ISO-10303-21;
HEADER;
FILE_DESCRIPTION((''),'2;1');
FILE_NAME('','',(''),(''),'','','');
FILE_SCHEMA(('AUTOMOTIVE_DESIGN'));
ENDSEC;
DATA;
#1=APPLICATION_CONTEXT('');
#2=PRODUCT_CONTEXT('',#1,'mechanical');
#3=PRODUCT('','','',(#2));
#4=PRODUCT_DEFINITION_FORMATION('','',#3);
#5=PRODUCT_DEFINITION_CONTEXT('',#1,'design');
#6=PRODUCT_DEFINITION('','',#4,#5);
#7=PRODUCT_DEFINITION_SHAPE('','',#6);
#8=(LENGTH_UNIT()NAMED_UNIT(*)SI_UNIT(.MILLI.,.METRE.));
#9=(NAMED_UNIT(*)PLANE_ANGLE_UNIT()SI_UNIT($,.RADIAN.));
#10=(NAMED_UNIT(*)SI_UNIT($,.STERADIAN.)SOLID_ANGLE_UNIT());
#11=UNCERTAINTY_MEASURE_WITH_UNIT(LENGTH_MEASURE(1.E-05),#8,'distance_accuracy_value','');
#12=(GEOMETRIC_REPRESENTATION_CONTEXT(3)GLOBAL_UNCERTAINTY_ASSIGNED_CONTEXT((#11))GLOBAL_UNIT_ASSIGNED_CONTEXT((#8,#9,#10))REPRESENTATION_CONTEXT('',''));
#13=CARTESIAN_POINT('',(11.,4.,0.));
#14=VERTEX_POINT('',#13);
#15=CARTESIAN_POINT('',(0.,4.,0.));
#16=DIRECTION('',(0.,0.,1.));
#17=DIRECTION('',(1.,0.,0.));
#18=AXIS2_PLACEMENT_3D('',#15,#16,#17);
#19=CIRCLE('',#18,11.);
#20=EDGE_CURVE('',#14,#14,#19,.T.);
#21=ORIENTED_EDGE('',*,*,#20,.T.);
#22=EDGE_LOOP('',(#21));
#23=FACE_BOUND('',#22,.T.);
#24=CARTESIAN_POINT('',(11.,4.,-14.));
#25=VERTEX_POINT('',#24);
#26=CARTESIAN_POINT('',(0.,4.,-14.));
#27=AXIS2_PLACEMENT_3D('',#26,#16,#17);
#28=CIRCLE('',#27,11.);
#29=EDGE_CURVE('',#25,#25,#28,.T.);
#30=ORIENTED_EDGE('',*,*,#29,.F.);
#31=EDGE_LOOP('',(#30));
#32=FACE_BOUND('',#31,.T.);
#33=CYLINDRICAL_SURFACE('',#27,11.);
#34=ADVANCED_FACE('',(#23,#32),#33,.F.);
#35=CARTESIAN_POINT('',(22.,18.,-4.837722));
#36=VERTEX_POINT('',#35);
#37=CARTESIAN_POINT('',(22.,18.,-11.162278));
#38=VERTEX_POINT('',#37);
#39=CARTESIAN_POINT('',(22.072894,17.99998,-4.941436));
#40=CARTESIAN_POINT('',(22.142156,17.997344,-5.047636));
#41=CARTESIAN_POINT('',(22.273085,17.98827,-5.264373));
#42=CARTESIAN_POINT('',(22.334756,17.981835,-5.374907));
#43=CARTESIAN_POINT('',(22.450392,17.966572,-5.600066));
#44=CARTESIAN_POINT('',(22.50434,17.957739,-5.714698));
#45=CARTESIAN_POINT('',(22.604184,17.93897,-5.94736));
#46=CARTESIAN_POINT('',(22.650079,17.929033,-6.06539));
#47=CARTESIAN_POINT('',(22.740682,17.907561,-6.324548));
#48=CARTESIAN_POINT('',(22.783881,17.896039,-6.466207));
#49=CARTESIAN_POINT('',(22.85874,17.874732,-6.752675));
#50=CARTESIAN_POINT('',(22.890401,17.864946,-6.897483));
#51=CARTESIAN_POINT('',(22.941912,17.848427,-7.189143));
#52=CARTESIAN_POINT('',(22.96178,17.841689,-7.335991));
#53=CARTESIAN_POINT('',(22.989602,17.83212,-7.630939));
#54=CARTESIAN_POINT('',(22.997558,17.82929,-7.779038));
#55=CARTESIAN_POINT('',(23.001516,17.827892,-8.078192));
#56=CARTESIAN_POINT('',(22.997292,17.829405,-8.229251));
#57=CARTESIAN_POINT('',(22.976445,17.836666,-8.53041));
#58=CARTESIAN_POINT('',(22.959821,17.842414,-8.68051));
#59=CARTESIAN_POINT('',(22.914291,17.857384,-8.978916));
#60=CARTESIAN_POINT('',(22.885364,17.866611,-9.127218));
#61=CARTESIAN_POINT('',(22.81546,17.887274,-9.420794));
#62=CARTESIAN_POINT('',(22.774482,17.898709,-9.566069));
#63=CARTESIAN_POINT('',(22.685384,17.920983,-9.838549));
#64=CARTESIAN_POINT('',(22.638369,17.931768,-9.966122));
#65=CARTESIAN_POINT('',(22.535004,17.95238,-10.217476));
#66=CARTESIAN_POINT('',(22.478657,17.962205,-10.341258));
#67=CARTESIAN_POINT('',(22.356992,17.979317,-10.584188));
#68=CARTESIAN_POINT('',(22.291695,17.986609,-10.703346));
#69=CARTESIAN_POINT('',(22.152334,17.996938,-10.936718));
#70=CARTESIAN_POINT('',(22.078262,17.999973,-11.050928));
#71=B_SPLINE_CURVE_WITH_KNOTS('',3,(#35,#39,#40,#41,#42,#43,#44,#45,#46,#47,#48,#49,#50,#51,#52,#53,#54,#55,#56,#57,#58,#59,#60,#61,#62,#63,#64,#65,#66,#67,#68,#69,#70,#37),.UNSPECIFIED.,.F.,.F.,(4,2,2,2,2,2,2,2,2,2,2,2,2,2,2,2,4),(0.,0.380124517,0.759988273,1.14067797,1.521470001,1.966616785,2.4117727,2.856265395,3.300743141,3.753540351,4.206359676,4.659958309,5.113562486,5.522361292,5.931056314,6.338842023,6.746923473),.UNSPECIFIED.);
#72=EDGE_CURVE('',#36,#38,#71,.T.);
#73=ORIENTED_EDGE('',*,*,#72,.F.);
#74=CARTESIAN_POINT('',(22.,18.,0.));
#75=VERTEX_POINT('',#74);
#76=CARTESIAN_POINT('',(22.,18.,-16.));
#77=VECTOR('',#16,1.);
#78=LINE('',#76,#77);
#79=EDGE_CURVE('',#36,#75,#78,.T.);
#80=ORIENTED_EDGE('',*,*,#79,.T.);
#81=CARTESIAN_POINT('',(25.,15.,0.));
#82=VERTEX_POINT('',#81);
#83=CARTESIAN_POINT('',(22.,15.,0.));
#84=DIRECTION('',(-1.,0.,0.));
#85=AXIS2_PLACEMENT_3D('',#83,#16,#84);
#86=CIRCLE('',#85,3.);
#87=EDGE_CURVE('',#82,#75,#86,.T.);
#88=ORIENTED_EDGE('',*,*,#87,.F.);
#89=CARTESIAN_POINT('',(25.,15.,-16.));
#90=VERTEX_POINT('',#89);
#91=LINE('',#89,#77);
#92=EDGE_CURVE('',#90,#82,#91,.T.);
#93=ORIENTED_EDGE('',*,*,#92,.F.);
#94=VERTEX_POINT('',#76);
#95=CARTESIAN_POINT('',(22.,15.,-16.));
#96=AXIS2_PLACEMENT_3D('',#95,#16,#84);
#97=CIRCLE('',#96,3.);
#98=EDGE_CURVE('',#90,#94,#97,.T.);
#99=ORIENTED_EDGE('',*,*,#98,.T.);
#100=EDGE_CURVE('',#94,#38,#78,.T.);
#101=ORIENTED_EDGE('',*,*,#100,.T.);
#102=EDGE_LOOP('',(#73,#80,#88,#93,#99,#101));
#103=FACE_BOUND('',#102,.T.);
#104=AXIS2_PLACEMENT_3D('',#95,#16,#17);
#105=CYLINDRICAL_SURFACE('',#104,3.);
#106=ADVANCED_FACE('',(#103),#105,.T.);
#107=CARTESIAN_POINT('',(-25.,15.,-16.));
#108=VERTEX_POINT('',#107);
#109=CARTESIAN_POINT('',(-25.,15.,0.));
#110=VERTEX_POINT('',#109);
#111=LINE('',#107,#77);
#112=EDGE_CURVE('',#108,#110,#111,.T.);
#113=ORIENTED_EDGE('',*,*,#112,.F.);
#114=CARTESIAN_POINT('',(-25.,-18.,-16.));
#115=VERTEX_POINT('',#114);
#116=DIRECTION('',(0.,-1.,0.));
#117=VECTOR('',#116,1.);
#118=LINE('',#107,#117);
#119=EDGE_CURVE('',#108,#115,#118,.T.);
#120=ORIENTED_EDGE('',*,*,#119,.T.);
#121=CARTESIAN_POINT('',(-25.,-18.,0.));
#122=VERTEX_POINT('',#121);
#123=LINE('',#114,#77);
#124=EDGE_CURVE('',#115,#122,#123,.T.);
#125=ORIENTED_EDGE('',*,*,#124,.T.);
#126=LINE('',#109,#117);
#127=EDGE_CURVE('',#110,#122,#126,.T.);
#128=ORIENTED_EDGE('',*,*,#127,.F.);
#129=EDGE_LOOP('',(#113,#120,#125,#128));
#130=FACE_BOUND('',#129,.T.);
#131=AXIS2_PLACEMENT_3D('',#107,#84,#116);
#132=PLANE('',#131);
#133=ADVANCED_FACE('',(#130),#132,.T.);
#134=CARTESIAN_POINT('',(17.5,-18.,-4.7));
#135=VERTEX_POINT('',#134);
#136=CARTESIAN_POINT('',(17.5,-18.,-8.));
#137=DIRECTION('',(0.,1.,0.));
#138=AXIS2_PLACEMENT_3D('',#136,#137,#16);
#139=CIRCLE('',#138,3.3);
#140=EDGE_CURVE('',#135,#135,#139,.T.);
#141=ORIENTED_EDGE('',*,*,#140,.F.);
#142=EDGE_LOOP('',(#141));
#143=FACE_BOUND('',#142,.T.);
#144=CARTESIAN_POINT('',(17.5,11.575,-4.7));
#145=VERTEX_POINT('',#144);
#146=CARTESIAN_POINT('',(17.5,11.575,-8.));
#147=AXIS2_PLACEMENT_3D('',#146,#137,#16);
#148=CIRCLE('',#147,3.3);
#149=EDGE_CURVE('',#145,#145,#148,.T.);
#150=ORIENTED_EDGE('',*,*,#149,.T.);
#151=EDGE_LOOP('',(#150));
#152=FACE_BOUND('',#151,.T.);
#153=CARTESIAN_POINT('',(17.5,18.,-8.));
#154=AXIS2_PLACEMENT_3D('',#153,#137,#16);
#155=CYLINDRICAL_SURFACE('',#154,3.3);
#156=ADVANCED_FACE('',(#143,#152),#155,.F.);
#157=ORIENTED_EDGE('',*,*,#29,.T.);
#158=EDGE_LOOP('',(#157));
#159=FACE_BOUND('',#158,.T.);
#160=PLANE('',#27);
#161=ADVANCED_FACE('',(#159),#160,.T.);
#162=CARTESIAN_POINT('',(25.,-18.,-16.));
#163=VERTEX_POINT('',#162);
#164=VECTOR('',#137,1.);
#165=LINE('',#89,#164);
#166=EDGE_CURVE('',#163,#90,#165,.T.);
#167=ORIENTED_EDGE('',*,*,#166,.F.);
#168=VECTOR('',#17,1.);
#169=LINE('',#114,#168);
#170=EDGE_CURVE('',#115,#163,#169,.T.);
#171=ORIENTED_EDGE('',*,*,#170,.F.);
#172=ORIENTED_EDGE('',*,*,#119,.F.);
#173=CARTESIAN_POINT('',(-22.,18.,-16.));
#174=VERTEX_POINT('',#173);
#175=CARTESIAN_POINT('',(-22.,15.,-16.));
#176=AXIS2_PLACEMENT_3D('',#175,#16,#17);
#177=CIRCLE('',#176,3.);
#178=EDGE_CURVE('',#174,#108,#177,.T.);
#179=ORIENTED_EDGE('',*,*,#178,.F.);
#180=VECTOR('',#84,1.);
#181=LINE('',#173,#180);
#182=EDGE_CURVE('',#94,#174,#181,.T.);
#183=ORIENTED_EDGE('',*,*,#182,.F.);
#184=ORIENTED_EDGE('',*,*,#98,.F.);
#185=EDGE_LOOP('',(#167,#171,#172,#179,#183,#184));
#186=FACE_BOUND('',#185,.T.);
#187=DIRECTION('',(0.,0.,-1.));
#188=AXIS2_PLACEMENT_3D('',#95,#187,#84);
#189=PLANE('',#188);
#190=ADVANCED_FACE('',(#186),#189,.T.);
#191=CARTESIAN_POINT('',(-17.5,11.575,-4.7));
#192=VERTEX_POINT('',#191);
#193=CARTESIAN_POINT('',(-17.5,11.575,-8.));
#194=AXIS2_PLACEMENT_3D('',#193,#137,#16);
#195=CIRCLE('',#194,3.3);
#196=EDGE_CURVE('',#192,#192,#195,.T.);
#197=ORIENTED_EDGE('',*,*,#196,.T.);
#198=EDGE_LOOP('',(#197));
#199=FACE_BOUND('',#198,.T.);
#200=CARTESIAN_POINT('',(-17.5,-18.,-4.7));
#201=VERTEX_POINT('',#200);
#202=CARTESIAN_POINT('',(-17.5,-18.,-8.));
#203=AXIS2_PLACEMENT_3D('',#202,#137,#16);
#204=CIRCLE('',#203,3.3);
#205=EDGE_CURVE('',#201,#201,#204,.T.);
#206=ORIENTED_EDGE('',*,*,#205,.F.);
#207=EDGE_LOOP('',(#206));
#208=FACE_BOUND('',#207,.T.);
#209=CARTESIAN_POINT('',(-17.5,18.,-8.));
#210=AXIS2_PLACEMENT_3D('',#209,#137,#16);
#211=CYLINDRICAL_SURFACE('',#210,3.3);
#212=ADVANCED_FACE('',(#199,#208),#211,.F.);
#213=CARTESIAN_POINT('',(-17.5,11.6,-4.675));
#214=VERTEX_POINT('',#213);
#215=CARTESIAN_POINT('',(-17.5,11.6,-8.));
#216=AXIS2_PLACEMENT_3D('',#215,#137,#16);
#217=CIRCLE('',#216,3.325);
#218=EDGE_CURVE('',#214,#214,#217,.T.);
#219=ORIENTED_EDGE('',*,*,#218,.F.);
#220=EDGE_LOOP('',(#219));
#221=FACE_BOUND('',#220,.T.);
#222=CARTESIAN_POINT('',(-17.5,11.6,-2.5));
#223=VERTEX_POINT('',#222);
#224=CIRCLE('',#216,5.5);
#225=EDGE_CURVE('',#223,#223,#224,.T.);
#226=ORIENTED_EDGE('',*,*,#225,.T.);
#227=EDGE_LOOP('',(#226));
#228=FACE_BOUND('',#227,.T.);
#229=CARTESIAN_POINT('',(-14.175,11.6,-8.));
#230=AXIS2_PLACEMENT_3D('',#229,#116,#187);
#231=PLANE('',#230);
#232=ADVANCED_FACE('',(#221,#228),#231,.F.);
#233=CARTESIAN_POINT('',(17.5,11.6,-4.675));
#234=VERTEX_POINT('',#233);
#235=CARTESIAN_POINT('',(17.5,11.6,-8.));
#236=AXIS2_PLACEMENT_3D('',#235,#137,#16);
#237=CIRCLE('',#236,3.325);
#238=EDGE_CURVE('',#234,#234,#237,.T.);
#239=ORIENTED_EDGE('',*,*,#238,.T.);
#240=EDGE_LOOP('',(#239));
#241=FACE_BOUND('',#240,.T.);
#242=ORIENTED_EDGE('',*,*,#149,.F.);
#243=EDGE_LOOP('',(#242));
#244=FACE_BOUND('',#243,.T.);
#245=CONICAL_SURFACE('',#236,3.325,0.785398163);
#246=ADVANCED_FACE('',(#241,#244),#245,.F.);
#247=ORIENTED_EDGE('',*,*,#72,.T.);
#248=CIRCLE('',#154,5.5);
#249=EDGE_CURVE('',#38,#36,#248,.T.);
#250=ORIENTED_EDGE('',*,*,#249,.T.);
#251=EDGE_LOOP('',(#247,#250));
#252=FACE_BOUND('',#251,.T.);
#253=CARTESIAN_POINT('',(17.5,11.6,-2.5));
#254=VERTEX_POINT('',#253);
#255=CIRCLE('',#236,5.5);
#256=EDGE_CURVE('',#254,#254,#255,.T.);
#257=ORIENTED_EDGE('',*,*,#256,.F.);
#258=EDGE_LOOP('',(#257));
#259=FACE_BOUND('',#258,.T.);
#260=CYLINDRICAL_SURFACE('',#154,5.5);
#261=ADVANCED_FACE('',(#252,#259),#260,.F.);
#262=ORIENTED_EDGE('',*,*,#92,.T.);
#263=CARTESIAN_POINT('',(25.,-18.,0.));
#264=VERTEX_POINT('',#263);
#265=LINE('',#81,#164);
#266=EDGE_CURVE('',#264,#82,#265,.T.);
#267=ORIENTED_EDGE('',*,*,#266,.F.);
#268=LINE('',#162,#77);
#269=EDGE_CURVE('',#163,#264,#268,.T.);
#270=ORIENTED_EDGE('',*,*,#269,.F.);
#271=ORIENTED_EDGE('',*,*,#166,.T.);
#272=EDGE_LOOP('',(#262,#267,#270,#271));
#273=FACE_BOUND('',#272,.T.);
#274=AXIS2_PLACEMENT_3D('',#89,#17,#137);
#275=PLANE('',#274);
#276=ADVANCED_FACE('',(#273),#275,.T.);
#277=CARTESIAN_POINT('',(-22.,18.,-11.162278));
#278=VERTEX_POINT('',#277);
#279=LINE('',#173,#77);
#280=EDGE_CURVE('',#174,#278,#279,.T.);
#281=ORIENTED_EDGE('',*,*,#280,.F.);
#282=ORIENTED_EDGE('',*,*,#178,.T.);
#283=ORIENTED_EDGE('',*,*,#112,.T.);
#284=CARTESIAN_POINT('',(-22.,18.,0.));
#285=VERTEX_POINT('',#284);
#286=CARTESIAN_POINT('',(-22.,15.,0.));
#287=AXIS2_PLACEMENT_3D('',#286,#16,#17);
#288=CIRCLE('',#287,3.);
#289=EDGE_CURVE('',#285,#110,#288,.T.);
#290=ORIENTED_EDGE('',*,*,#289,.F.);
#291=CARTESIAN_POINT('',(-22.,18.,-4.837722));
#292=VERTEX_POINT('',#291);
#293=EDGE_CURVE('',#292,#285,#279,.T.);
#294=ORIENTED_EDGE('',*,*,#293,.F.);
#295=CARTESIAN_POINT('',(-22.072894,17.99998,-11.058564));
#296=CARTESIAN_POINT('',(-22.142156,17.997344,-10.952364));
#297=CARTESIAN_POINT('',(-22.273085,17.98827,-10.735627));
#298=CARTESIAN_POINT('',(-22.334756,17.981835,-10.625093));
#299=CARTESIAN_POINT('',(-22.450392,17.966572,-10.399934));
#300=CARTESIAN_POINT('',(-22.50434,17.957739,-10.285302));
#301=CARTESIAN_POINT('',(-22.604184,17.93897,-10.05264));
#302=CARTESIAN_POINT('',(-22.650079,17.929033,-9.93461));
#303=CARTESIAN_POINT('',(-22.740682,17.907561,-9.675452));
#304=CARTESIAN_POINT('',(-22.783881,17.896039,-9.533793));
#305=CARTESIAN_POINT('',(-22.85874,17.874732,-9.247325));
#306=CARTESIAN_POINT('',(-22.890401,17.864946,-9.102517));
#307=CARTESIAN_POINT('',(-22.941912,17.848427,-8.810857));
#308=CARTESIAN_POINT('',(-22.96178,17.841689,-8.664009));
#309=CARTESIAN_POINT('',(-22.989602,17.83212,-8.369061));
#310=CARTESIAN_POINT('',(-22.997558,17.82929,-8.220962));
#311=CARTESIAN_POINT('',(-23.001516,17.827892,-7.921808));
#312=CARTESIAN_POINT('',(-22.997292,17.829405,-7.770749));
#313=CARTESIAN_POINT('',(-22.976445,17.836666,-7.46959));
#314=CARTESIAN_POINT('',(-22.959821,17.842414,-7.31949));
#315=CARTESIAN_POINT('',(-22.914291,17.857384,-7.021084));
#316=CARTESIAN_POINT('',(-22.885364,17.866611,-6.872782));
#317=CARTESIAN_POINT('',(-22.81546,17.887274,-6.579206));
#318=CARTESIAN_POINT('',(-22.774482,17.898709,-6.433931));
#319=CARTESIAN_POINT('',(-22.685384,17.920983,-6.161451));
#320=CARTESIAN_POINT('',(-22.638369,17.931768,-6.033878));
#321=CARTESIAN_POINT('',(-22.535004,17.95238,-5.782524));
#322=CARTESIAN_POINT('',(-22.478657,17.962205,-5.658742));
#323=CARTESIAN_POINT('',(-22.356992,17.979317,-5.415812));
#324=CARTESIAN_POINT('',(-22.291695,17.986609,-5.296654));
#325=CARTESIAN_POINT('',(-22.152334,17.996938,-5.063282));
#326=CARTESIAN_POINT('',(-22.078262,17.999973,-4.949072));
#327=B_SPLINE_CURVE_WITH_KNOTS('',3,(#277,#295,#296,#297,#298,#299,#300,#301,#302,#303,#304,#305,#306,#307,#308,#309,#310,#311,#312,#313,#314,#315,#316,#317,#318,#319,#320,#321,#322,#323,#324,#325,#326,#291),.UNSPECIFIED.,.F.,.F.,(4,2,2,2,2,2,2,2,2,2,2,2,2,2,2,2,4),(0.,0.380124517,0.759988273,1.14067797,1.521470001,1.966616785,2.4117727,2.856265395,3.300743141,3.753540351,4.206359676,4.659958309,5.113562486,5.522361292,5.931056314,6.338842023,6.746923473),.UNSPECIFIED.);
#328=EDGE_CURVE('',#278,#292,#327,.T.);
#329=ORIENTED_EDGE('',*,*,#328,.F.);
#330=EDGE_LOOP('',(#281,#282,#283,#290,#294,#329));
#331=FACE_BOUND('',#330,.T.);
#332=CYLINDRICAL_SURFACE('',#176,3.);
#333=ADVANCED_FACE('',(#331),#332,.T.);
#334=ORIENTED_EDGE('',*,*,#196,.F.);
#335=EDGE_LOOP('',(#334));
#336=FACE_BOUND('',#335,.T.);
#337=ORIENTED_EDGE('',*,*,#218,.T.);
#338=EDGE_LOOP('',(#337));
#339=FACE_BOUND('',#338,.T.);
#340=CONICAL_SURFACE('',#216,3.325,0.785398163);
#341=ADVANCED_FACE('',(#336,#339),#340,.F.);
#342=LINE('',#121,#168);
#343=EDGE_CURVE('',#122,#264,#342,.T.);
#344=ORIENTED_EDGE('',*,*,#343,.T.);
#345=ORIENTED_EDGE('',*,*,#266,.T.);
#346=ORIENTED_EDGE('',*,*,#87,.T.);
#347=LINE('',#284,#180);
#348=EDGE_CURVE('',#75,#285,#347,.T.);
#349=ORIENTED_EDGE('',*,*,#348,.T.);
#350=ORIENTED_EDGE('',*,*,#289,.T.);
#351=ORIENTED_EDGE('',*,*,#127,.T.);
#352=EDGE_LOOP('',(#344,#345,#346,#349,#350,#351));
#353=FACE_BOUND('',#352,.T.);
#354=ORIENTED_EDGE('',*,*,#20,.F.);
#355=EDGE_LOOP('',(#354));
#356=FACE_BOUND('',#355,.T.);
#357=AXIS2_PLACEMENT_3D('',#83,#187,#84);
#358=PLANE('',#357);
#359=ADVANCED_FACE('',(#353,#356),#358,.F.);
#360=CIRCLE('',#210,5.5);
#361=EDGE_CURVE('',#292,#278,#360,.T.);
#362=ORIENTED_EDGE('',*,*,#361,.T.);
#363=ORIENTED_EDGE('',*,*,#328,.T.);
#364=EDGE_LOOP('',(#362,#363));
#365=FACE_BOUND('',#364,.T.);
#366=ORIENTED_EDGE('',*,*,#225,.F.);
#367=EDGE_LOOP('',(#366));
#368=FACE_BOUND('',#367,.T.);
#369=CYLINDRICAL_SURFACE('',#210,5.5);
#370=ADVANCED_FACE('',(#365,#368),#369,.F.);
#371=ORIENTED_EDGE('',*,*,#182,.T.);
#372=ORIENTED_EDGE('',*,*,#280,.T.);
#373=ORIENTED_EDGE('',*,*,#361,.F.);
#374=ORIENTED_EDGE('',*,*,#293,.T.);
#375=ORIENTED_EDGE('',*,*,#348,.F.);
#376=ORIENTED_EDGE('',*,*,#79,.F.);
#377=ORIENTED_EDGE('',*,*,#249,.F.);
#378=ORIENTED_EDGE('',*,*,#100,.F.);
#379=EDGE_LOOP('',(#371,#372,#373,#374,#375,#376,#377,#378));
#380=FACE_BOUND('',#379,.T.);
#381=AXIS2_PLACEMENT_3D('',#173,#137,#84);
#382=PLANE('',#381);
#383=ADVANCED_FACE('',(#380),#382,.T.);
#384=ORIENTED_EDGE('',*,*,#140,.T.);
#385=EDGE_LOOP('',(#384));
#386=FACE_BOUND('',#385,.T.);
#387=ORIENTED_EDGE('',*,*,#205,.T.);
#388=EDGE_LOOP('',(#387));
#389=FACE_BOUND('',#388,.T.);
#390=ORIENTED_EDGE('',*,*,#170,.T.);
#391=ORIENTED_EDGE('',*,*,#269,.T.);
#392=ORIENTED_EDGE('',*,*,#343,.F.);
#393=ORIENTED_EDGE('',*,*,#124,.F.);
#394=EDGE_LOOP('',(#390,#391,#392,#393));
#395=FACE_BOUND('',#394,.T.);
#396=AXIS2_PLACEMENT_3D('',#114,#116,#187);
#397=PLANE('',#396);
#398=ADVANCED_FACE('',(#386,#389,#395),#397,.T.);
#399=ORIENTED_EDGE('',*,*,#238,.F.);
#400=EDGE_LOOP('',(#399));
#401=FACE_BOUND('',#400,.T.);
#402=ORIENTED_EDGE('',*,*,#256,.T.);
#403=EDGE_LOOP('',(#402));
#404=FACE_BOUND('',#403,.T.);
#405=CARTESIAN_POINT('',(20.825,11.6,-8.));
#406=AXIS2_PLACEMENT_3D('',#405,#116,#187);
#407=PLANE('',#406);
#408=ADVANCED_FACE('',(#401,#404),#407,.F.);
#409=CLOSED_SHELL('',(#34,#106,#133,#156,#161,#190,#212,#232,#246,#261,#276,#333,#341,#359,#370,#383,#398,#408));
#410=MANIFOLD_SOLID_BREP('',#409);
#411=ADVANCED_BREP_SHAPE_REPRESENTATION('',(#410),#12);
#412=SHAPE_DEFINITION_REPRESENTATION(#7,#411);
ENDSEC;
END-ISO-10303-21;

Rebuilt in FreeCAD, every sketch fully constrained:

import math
import FreeCAD as App
import Part
import Sketcher
from FreeCAD import Vector
Q = App.Units.Quantity

doc = App.newDocument("Part")
body = doc.addObject("PartDesign::Body", "Body")

# Sketch on XY plane
sketch1 = body.newObject("Sketcher::SketchObject", "Sketch")
sketch1.AttachmentSupport = (doc.getObject("XY_Plane"), [""])
sketch1.MapMode = "FlatFace"
sketch1.addGeometry([
    Part.LineSegment(Vector(22, 18, 0), Vector(-22, 18, 0)),  # 0
    Part.ArcOfCircle(Part.Circle(Vector(-22, 15, 0), Vector(0, 0, 1), 3), math.radians(90), math.radians(180)),  # 1
    Part.LineSegment(Vector(-25, 15, 0), Vector(-25, -18, 0)),  # 2
    Part.LineSegment(Vector(-25, -18, 0), Vector(25, -18, 0)),  # 3
    Part.LineSegment(Vector(25, -18, 0), Vector(25, 15, 0)),  # 4
    Part.ArcOfCircle(Part.Circle(Vector(22, 15, 0), Vector(0, 0, 1), 3), math.radians(0), math.radians(90)),  # 5
], False)
sketch1.addConstraint([
    Sketcher.Constraint("Tangent", 0, 2, 1, 1),
    Sketcher.Constraint("Tangent", 1, 2, 2, 1),
    Sketcher.Constraint("Coincident", 2, 2, 3, 1),
    Sketcher.Constraint("Coincident", 3, 2, 4, 1),
    Sketcher.Constraint("Tangent", 4, 2, 5, 1),
    Sketcher.Constraint("Tangent", 5, 2, 0, 1),
    Sketcher.Constraint("Horizontal", 0),
    Sketcher.Constraint("Vertical", 2),
    Sketcher.Constraint("Horizontal", 3),
    Sketcher.Constraint("Vertical", 4),
    Sketcher.Constraint("Equal", 1, 5),
    Sketcher.Constraint("Radius", 1, 3.0),
    Sketcher.Constraint("DistanceX", 0, 2, 0, 1, 44.0),
    Sketcher.Constraint("DistanceY", 2, 2, 2, 1, 33.0),
    Sketcher.Constraint("DistanceX", 1, 3, -1, 1, 22.0),
    Sketcher.Constraint("DistanceY", -1, 1, 1, 3, 15.0),
])
pad1 = body.newObject("PartDesign::Pad", "Pad")
pad1.Profile = sketch1
pad1.Length = 16
pad1.Reversed = True

# Sketch on YZ plane
sketch2 = body.newObject("Sketcher::SketchObject", "Sketch001")
sketch2.AttachmentSupport = (doc.getObject("YZ_Plane"), [""])
sketch2.MapMode = "FlatFace"
sketch2.AttachmentOffset = App.Placement(Vector(0, 0, -17.5), App.Rotation())
sketch2.addGeometry([
    Part.LineSegment(Vector(-18, -8, 0), Vector(18, -8, 0)),  # 0
    Part.LineSegment(Vector(18, -8, 0), Vector(18, -2.5, 0)),  # 1
    Part.LineSegment(Vector(18, -2.5, 0), Vector(11.6, -2.5, 0)),  # 2
    Part.LineSegment(Vector(11.6, -2.5, 0), Vector(11.6, -4.675, 0)),  # 3
    Part.LineSegment(Vector(11.6, -4.675, 0), Vector(11.575, -4.7, 0)),  # 4
    Part.LineSegment(Vector(11.575, -4.7, 0), Vector(-18, -4.7, 0)),  # 5
    Part.LineSegment(Vector(-18, -4.7, 0), Vector(-18, -8, 0)),  # 6
], False)
sketch2.addGeometry(Part.LineSegment(Vector(18, -8, 0), Vector(-18, -8, 0)), True)  # axis
sketch2.addConstraint([
    Sketcher.Constraint("Coincident", 0, 2, 1, 1),
    Sketcher.Constraint("Coincident", 1, 2, 2, 1),
    Sketcher.Constraint("Coincident", 2, 2, 3, 1),
    Sketcher.Constraint("Coincident", 3, 2, 4, 1),
    Sketcher.Constraint("Coincident", 4, 2, 5, 1),
    Sketcher.Constraint("Coincident", 5, 2, 6, 1),
    Sketcher.Constraint("Coincident", 6, 2, 0, 1),
    Sketcher.Constraint("Horizontal", 0),
    Sketcher.Constraint("Vertical", 1),
    Sketcher.Constraint("Horizontal", 2),
    Sketcher.Constraint("Vertical", 3),
    Sketcher.Constraint("Horizontal", 5),
    Sketcher.Constraint("Vertical", 6),
    Sketcher.Constraint("Horizontal", 7),
    Sketcher.Constraint("Coincident", 7, 1, 0, 2),
    Sketcher.Constraint("Vertical", 5, 2, 7, 2),
    Sketcher.Constraint("DistanceX", 0, 1, 0, 2, 36.0),
    Sketcher.Constraint("Angle", 4, Q("-135 deg")),
    Sketcher.Constraint("DistanceX", 2, 2, 2, 1, 6.4),
    Sketcher.Constraint("DistanceY", 1, 1, 1, 2, 5.5),
    Sketcher.Constraint("DistanceY", 6, 2, 6, 1, 3.3),
    Sketcher.Constraint("DistanceX", -1, 1, 0, 2, 18.0),
    Sketcher.Constraint("DistanceY", 0, 2, -1, 1, 8.0),
    Sketcher.Constraint("DistanceX", 5, 2, 5, 1, 29.575),
])
groove = body.newObject("PartDesign::Groove", "Groove")
groove.Profile = sketch2
groove.ReferenceAxis = (sketch2, ["Axis0"])
groove.Angle = 360
doc.recompute()

linearpattern = body.newObject("PartDesign::LinearPattern", "LinearPattern")
linearpattern.Originals = [groove]
linearpattern.Direction = (doc.getObject("X_Axis"), [""])
linearpattern.Mode = "offset"
linearpattern.Offset = 35
linearpattern.Occurrences = 2
body.Tip = linearpattern

# Sketch on XY plane
sketch3 = body.newObject("Sketcher::SketchObject", "Sketch002")
sketch3.AttachmentSupport = (doc.getObject("XY_Plane"), [""])
sketch3.MapMode = "FlatFace"
sketch3.addGeometry(Part.Circle(Vector(0, 4, 0), Vector(0, 0, 1), 11), False)
sketch3.addConstraint([
    Sketcher.Constraint("PointOnObject", 0, 3, -2),
    Sketcher.Constraint("Diameter", 0, 22.0),
    Sketcher.Constraint("DistanceY", -1, 1, 0, 3, 4.0),
])
pocket1 = body.newObject("PartDesign::Pocket", "Pocket")
pocket1.Profile = sketch3
pocket1.Length = 14

doc.recompute()
